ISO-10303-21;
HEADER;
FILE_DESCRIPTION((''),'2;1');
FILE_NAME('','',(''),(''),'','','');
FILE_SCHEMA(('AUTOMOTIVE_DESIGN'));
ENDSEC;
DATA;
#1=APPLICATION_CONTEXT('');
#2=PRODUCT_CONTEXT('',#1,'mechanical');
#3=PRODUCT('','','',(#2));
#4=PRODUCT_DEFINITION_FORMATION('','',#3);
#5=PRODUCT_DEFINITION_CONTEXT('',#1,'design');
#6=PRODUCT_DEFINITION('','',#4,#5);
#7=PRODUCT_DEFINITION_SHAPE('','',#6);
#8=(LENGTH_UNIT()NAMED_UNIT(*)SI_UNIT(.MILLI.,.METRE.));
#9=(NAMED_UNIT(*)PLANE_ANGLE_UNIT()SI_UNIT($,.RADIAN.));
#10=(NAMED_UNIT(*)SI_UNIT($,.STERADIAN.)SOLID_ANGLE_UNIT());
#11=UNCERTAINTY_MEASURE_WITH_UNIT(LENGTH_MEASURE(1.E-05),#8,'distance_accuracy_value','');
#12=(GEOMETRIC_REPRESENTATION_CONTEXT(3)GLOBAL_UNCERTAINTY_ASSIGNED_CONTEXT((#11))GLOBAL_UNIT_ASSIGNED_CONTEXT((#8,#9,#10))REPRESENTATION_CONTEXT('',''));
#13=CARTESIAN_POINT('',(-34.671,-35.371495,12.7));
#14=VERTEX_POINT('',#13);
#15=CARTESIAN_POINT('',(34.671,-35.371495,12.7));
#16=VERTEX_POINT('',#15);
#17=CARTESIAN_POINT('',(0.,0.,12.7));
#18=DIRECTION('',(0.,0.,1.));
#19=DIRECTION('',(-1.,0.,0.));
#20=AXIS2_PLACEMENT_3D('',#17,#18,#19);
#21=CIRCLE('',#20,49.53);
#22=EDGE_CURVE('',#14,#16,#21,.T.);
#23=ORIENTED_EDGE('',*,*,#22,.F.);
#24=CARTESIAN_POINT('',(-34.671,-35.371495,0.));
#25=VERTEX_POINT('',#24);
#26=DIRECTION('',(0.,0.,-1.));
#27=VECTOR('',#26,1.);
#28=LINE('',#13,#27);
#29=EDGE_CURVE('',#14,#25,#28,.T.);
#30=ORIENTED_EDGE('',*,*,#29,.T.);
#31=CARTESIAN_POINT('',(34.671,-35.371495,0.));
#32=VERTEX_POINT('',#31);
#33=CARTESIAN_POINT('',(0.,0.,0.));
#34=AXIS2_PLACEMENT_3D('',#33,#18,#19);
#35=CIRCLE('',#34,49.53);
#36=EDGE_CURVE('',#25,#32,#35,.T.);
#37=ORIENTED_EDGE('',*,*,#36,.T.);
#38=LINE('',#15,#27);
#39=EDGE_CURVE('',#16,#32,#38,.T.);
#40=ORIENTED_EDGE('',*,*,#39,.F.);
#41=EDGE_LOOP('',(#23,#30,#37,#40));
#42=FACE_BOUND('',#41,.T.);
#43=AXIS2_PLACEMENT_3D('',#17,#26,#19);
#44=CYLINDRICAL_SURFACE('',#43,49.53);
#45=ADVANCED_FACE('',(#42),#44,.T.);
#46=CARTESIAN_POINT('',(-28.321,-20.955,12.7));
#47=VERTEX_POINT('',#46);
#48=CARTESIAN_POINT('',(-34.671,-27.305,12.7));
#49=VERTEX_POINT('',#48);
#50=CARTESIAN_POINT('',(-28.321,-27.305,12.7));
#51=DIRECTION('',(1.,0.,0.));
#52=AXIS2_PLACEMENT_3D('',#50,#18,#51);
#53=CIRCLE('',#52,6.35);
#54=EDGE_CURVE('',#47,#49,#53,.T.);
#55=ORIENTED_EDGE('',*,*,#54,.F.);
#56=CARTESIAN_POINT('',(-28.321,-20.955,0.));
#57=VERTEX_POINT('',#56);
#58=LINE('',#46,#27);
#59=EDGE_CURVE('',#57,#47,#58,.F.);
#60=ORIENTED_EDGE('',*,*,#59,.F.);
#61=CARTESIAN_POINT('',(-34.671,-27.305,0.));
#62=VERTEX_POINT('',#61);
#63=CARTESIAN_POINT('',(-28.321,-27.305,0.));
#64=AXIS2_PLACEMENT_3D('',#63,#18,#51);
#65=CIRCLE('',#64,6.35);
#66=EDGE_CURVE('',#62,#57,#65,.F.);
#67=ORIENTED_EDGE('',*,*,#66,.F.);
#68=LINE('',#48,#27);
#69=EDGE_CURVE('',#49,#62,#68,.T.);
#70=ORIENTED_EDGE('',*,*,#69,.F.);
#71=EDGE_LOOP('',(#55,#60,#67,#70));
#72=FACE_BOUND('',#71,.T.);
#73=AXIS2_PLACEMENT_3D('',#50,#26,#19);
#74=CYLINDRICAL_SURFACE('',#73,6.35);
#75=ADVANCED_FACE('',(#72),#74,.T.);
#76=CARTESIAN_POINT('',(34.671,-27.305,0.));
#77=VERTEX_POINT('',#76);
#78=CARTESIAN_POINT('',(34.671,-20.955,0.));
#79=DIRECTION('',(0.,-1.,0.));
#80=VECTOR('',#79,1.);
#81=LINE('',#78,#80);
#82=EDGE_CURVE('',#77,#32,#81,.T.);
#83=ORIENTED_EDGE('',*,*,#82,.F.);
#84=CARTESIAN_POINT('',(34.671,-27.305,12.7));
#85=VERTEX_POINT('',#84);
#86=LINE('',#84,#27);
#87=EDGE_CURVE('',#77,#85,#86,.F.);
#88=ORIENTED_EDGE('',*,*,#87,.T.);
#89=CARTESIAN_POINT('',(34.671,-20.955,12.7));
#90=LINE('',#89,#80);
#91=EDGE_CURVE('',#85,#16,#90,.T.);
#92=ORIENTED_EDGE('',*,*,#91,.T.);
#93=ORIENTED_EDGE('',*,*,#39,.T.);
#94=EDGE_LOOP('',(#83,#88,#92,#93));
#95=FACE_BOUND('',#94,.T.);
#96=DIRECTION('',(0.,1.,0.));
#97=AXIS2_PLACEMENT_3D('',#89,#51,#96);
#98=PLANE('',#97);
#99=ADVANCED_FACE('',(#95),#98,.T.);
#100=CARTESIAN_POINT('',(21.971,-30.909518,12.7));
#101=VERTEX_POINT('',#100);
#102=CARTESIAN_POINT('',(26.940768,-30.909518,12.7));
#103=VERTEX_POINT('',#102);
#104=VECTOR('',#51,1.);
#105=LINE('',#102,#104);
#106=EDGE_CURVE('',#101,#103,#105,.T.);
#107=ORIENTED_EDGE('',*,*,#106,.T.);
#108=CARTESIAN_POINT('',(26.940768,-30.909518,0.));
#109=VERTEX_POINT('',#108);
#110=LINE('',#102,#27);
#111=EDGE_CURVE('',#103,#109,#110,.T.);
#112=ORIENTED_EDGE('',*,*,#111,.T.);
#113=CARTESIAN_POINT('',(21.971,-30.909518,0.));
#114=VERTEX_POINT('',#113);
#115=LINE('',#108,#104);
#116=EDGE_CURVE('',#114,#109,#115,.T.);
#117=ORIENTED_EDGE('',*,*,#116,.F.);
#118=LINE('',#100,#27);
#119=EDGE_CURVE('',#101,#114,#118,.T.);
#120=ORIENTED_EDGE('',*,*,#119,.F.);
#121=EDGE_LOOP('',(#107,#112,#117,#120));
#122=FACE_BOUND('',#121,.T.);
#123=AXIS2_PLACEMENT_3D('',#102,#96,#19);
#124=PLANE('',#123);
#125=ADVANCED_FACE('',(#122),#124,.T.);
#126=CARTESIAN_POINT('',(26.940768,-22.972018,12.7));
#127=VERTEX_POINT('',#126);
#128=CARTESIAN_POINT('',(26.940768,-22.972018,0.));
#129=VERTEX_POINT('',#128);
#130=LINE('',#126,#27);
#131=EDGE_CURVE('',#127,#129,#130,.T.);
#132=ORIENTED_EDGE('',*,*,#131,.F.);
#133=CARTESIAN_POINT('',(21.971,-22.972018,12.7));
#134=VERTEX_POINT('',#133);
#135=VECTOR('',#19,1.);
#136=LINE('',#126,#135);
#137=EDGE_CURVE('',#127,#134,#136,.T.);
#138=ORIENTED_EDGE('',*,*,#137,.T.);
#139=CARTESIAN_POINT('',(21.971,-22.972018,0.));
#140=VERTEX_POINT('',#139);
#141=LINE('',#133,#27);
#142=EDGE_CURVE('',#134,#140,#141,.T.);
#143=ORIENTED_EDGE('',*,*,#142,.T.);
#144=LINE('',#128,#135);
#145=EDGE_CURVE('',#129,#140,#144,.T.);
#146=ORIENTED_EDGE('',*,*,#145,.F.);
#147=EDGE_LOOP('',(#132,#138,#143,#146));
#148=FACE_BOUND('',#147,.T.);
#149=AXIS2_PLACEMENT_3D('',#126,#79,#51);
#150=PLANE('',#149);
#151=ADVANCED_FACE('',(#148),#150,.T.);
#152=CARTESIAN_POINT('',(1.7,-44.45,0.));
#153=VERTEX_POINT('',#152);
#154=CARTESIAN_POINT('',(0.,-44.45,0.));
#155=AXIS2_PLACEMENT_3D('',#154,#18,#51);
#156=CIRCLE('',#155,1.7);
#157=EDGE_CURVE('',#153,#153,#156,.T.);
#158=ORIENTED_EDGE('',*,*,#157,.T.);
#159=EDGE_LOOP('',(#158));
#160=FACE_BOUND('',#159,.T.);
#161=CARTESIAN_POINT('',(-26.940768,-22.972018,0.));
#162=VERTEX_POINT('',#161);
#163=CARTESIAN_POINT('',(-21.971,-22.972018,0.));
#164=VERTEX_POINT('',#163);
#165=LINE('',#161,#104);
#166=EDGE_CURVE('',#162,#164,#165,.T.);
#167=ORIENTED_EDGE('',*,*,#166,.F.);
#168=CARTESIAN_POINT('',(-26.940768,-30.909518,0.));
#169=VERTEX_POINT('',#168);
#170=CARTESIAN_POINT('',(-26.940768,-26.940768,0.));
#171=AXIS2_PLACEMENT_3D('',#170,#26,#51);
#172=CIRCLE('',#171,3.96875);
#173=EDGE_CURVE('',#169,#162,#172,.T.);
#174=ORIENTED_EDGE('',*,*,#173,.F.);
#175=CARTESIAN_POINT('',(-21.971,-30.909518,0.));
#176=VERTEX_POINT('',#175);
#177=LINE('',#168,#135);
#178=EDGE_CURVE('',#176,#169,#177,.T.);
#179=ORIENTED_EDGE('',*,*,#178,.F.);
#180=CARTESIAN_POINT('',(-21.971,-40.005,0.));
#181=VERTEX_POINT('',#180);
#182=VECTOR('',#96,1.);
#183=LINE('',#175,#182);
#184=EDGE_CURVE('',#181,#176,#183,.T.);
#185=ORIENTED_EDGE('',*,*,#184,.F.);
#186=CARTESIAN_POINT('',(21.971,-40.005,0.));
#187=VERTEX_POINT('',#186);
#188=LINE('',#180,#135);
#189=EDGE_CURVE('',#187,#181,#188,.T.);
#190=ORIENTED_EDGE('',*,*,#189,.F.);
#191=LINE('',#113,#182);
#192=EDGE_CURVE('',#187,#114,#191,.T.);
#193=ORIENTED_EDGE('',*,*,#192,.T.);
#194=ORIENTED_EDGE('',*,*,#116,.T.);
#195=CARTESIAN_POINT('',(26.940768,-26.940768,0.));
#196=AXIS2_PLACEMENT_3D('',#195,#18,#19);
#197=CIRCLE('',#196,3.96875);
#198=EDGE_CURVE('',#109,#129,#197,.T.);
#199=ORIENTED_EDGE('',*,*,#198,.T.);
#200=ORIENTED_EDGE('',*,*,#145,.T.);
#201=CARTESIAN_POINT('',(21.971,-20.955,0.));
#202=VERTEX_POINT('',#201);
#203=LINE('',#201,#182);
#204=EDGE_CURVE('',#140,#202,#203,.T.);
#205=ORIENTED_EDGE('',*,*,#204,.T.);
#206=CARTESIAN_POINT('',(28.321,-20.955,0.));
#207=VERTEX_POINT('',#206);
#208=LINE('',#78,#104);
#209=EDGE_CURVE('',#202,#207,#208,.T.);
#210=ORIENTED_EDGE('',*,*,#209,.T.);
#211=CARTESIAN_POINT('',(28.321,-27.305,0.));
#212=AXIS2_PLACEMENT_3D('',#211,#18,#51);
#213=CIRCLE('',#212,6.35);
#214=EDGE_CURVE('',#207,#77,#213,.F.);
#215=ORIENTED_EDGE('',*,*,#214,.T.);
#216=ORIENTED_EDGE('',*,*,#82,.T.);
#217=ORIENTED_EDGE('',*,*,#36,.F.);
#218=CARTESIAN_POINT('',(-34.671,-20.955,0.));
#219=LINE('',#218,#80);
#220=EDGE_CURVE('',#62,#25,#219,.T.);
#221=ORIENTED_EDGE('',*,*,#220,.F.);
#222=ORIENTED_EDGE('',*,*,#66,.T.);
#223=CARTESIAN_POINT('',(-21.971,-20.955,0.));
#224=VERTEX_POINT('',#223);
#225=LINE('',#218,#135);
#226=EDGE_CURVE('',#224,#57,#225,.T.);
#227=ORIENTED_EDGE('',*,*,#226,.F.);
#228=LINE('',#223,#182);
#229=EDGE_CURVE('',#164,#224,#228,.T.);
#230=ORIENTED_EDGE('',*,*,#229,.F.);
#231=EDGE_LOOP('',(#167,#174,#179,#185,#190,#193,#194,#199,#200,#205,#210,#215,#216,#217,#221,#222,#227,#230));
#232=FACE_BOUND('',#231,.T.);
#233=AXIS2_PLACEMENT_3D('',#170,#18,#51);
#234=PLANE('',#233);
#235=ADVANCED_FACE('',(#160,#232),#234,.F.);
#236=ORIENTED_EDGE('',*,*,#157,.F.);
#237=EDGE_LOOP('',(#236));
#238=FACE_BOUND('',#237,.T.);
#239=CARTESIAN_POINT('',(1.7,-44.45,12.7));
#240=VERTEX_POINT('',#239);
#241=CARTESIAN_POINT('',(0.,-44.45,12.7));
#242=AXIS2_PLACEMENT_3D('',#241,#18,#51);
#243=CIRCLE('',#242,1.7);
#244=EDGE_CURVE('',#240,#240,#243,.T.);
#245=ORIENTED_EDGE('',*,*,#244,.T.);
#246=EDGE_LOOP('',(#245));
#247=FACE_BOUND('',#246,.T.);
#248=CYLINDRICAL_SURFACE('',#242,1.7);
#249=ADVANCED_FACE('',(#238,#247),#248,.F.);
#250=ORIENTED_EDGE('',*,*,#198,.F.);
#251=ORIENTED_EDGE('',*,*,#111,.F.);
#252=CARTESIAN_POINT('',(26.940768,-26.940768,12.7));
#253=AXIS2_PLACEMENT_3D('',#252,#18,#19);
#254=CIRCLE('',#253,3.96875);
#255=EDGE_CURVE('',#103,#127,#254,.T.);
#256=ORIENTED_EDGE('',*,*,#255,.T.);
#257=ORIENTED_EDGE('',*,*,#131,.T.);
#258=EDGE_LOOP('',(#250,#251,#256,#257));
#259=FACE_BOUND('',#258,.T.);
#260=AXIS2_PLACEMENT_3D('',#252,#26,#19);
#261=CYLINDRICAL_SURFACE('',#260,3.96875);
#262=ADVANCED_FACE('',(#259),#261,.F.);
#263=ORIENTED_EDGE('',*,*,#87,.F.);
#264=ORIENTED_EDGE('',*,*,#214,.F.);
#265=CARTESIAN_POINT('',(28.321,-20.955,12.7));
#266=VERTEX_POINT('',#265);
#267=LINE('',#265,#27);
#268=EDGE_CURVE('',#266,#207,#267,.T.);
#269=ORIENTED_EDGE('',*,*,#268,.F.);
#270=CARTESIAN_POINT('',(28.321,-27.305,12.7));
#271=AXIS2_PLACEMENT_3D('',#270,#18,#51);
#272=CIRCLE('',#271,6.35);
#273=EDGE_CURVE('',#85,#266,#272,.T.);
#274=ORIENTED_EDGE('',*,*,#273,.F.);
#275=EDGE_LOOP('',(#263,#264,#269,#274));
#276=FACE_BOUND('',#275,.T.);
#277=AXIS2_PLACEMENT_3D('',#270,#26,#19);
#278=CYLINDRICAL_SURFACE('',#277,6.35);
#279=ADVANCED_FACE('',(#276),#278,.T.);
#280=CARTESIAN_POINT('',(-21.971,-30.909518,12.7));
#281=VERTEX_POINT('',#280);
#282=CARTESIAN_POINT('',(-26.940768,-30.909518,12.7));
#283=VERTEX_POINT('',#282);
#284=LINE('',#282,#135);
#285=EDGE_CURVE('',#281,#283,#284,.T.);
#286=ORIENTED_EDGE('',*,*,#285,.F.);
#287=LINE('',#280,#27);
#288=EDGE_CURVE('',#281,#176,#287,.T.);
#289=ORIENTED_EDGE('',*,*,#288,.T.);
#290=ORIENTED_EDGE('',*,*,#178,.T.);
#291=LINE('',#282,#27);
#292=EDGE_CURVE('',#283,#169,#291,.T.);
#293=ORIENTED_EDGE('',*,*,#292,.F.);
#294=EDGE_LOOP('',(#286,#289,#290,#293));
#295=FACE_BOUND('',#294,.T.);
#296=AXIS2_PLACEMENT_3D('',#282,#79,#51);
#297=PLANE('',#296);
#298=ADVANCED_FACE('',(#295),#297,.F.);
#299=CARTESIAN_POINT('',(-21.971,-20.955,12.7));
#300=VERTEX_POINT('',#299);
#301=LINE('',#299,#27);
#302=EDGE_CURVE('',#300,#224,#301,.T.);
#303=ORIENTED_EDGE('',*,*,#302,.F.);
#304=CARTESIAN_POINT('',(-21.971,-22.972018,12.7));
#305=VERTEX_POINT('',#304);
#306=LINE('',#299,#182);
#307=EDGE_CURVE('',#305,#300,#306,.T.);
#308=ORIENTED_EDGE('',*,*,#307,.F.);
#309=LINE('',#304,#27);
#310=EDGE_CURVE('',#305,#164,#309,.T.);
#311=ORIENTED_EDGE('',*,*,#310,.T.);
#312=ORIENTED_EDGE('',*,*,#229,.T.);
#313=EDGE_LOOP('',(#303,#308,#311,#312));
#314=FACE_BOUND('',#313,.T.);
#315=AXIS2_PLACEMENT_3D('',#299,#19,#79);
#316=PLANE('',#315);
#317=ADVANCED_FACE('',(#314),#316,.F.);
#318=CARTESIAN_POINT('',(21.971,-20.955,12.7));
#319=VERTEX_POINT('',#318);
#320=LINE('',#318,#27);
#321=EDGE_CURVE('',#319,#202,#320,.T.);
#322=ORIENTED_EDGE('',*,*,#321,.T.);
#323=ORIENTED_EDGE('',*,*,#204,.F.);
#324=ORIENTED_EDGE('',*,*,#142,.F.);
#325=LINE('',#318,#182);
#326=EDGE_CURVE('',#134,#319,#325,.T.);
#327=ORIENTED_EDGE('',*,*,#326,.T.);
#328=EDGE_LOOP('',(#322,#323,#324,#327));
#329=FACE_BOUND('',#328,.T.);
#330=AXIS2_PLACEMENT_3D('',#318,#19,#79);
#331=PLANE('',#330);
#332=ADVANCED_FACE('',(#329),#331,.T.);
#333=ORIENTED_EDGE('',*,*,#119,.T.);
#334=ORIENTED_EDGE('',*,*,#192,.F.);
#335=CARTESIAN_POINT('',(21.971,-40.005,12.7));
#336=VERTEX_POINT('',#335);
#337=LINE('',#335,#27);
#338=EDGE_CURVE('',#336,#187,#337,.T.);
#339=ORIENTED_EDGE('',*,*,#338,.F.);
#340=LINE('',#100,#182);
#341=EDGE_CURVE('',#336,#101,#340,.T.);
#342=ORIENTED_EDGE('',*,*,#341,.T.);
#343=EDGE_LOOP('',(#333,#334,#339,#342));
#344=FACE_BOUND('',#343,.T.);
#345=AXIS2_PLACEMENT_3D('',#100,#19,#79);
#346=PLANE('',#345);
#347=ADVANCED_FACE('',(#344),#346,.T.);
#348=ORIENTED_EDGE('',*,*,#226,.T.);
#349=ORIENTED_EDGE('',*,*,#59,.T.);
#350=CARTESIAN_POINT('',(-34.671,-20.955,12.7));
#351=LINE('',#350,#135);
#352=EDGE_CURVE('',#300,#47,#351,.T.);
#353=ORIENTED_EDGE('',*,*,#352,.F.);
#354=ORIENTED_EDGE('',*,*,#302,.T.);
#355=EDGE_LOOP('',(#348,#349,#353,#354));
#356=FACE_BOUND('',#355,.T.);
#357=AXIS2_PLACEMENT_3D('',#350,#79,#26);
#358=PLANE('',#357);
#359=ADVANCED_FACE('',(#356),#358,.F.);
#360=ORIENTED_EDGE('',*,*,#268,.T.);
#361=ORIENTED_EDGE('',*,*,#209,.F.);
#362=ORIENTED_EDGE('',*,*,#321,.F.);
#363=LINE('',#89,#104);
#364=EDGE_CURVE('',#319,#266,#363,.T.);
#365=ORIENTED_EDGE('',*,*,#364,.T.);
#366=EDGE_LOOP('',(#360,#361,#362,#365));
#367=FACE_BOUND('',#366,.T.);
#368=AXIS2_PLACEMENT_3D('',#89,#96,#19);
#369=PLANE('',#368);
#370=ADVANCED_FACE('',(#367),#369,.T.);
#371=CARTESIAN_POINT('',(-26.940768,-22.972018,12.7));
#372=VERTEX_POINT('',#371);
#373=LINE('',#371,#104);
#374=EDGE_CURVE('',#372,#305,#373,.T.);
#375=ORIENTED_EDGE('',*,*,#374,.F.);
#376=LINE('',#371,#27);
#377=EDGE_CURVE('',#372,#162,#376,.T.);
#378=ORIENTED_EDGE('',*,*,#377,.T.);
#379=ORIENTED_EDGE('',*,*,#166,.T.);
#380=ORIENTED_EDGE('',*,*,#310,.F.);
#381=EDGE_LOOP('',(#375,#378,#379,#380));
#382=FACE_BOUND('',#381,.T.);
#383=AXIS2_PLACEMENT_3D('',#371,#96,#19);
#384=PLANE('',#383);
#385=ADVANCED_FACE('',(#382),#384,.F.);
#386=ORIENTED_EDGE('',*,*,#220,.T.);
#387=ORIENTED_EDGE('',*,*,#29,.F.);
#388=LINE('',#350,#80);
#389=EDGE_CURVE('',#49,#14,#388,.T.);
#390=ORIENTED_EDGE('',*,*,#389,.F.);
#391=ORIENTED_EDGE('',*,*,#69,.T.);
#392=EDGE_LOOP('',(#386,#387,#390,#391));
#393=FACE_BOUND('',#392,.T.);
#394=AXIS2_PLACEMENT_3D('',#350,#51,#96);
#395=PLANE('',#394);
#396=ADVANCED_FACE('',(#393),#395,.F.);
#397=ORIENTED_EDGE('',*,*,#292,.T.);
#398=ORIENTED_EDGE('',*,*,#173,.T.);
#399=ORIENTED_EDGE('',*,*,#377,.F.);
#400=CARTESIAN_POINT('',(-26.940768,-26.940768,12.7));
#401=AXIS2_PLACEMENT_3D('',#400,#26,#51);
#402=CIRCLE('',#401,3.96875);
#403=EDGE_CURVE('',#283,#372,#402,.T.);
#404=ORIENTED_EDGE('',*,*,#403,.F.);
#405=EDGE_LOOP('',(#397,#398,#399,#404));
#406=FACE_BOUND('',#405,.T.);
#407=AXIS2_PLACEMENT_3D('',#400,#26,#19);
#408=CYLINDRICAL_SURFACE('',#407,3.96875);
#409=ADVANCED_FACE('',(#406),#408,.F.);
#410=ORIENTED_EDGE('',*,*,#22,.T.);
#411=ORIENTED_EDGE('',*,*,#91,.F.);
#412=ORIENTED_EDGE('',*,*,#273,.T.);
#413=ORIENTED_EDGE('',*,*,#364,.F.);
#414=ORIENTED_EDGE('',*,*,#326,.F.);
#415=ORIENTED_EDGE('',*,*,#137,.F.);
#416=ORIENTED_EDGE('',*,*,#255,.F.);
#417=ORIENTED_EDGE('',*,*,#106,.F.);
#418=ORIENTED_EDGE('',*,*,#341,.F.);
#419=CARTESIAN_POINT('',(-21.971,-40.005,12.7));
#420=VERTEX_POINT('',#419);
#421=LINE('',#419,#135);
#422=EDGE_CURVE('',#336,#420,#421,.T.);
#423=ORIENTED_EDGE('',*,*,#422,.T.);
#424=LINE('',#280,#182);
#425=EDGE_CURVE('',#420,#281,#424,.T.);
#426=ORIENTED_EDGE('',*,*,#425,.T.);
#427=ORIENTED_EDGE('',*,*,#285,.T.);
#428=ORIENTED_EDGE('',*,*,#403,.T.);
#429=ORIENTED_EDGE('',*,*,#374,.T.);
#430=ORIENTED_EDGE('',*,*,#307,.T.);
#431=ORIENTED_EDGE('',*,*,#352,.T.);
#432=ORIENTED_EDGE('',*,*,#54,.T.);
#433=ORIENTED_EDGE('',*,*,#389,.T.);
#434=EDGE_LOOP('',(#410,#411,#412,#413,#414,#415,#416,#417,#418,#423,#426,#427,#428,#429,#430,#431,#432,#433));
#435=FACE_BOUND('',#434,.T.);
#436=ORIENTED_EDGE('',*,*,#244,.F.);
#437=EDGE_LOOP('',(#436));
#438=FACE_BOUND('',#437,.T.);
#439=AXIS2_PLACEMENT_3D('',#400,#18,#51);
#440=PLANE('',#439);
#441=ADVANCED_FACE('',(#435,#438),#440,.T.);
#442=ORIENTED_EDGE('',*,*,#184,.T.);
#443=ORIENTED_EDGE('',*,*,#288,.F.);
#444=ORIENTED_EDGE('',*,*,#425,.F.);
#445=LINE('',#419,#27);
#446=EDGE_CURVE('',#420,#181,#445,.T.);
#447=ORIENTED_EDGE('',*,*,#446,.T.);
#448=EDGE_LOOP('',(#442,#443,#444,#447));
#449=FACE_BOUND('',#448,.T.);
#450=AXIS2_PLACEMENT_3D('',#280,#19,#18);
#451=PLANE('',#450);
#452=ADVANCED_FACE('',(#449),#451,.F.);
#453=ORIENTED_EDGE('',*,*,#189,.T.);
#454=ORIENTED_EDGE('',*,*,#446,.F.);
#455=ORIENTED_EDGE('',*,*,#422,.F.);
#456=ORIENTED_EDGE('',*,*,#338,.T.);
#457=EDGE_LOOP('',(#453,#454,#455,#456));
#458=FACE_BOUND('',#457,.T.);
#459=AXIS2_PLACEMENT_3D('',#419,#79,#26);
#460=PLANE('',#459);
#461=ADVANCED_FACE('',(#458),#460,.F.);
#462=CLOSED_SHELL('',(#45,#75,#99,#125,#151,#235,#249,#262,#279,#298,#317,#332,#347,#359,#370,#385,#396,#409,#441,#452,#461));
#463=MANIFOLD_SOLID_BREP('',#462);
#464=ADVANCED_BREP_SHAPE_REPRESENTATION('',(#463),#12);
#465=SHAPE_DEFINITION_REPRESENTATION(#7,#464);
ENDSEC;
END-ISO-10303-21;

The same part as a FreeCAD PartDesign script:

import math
import FreeCAD as App
import Part
import Sketcher
from FreeCAD import Vector
Q = App.Units.Quantity


def edges_at(feature, points):
    """Names of the edges that pass closest to the given points."""
    edges = feature.Shape.Edges
    near = lambda p: min(range(len(edges)), key=lambda i: edges[i].distToShape(Part.Vertex(*p))[0])
    return sorted({f"Edge{near(p) + 1}" for p in points})

doc = App.newDocument("Part")
body = doc.addObject("PartDesign::Body", "Body")

sketch1 = body.newObject("Sketcher::SketchObject", "Sketch")
sketch1.AttachmentSupport = (doc.getObject("XY_Plane"), [""])
sketch1.MapMode = "FlatFace"
sketch1.addGeometry(Part.LineSegment(Vector(-34.671, -20.955, 0), Vector(-34.671, -35.371495, 0)), False)
sketch1.addGeometry(Part.ArcOfCircle(Part.Circle(Vector(0, 0, 0), Vector(0, 0, 1), 49.53), math.radians(-134.427004), math.radians(-90)), False)
sketch1.addGeometry(Part.LineSegment(Vector(0, -49.53, 0), Vector(0, -40.005, 0)), False)
sketch1.addGeometry(Part.LineSegment(Vector(0, -40.005, 0), Vector(-21.971, -40.005, 0)), False)
sketch1.addGeometry(Part.LineSegment(Vector(-21.971, -40.005, 0), Vector(-21.971, -30.909518, 0)), False)
sketch1.addGeometry(Part.LineSegment(Vector(-21.971, -30.909518, 0), Vector(-26.940768, -30.909518, 0)), False)
sketch1.addGeometry(Part.ArcOfCircle(Part.Circle(Vector(-26.940768, -26.940768, 0), Vector(0, 0, 1), 3.96875), math.radians(90), math.radians(270)), False)
sketch1.addGeometry(Part.LineSegment(Vector(-26.940768, -22.972018, 0), Vector(-21.971, -22.972018, 0)), False)
sketch1.addGeometry(Part.LineSegment(Vector(-21.971, -22.972018, 0), Vector(-21.971, -20.955, 0)), False)
sketch1.addGeometry(Part.LineSegment(Vector(-21.971, -20.955, 0), Vector(-34.671, -20.955, 0)), False)
sketch1.addConstraint(Sketcher.Constraint("Coincident", 0, 2, 1, 1))
sketch1.addConstraint(Sketcher.Constraint("Coincident", 1, 2, 2, 1))
sketch1.addConstraint(Sketcher.Constraint("Coincident", 2, 2, 3, 1))
sketch1.addConstraint(Sketcher.Constraint("Coincident", 3, 2, 4, 1))
sketch1.addConstraint(Sketcher.Constraint("Coincident", 4, 2, 5, 1))
sketch1.addConstraint(Sketcher.Constraint("Tangent", 5, 2, 6, 2))
sketch1.addConstraint(Sketcher.Constraint("Tangent", 6, 1, 7, 1))
sketch1.addConstraint(Sketcher.Constraint("Coincident", 7, 2, 8, 1))
sketch1.addConstraint(Sketcher.Constraint("Coincident", 8, 2, 9, 1))
sketch1.addConstraint(Sketcher.Constraint("Coincident", 9, 2, 0, 1))
sketch1.addConstraint(Sketcher.Constraint("Vertical", 0))
sketch1.addConstraint(Sketcher.Constraint("Vertical", 2))
sketch1.addConstraint(Sketcher.Constraint("Horizontal", 3))
sketch1.addConstraint(Sketcher.Constraint("Vertical", 4))
sketch1.addConstraint(Sketcher.Constraint("Horizontal", 5))
sketch1.addConstraint(Sketcher.Constraint("Horizontal", 7))
sketch1.addConstraint(Sketcher.Constraint("Vertical", 8))
sketch1.addConstraint(Sketcher.Constraint("Horizontal", 9))
sketch1.addConstraint(Sketcher.Constraint("Coincident", 1, 3, -1, 1))
sketch1.addConstraint(Sketcher.Constraint("PointOnObject", 1, 2, -2))
sketch1.addConstraint(Sketcher.Constraint("Vertical", 4, 2, 7, 2))
sketch1.addConstraint(Sketcher.Constraint("Radius", 1, Q("1.95 in")))
sketch1.addConstraint(Sketcher.Constraint("DistanceX", 9, 2, 9, 1, Q("0.5 in")))
sketch1.addConstraint(Sketcher.Constraint("Radius", 6, Q("0.15625 in")))
sketch1.addConstraint(Sketcher.Constraint("DistanceX", 3, 2, 3, 1, Q("0.865 in")))
sketch1.addConstraint(Sketcher.Constraint("DistanceY", 2, 1, 2, 2, Q("0.375 in")))
sketch1.addConstraint(Sketcher.Constraint("DistanceY", 8, 2, -1, 1, Q("0.825 in")))
sketch1.addConstraint(Sketcher.Constraint("DistanceX", 5, 2, 5, 1, 4.969768))
sketch1.addConstraint(Sketcher.Constraint("DistanceY", 4, 1, 4, 2, 9.095482))
pad1 = body.newObject("PartDesign::Pad", "Pad")
pad1.Profile = sketch1
pad1.Length = Q("0.5 in")
doc.recompute()

mirrored = body.newObject("PartDesign::Mirrored", "Mirrored")
mirrored.Originals = [pad1]
mirrored.MirrorPlane = (doc.getObject("YZ_Plane"), [""])
body.Tip = mirrored
doc.recompute()

fillet = body.newObject("PartDesign::Fillet", "Fillet")
fillet.Base = (mirrored, edges_at(mirrored, [(-34.671, -20.955, 6.35), (34.671, -20.955, 6.35)]))
fillet.Radius = Q("0.25 in")

sketch2 = body.newObject("Sketcher::SketchObject", "Sketch001")
sketch2.AttachmentSupport = (doc.getObject("XY_Plane"), [""])
sketch2.MapMode = "FlatFace"
sketch2.AttachmentOffset = App.Placement(Vector(0, 0, 0.5 * 25.4), App.Rotation())
sketch2.addGeometry(Part.Circle(Vector(0, -44.45, 0), Vector(0, 0, 1), 1.7), False)
sketch2.addConstraint(Sketcher.Constraint("PointOnObject", 0, 3, -2))
sketch2.addConstraint(Sketcher.Constraint("Diameter", 0, 3.4))
sketch2.addConstraint(Sketcher.Constraint("DistanceY", 0, 3, -1, 1, Q("1.75 in")))
doc.recompute()
hole = body.newObject("PartDesign::Hole", "Hole")
hole.Profile = sketch2
hole.ThreadType = "None"
hole.Diameter = 3.4
hole.DepthType = "ThroughAll"

doc.recompute()
